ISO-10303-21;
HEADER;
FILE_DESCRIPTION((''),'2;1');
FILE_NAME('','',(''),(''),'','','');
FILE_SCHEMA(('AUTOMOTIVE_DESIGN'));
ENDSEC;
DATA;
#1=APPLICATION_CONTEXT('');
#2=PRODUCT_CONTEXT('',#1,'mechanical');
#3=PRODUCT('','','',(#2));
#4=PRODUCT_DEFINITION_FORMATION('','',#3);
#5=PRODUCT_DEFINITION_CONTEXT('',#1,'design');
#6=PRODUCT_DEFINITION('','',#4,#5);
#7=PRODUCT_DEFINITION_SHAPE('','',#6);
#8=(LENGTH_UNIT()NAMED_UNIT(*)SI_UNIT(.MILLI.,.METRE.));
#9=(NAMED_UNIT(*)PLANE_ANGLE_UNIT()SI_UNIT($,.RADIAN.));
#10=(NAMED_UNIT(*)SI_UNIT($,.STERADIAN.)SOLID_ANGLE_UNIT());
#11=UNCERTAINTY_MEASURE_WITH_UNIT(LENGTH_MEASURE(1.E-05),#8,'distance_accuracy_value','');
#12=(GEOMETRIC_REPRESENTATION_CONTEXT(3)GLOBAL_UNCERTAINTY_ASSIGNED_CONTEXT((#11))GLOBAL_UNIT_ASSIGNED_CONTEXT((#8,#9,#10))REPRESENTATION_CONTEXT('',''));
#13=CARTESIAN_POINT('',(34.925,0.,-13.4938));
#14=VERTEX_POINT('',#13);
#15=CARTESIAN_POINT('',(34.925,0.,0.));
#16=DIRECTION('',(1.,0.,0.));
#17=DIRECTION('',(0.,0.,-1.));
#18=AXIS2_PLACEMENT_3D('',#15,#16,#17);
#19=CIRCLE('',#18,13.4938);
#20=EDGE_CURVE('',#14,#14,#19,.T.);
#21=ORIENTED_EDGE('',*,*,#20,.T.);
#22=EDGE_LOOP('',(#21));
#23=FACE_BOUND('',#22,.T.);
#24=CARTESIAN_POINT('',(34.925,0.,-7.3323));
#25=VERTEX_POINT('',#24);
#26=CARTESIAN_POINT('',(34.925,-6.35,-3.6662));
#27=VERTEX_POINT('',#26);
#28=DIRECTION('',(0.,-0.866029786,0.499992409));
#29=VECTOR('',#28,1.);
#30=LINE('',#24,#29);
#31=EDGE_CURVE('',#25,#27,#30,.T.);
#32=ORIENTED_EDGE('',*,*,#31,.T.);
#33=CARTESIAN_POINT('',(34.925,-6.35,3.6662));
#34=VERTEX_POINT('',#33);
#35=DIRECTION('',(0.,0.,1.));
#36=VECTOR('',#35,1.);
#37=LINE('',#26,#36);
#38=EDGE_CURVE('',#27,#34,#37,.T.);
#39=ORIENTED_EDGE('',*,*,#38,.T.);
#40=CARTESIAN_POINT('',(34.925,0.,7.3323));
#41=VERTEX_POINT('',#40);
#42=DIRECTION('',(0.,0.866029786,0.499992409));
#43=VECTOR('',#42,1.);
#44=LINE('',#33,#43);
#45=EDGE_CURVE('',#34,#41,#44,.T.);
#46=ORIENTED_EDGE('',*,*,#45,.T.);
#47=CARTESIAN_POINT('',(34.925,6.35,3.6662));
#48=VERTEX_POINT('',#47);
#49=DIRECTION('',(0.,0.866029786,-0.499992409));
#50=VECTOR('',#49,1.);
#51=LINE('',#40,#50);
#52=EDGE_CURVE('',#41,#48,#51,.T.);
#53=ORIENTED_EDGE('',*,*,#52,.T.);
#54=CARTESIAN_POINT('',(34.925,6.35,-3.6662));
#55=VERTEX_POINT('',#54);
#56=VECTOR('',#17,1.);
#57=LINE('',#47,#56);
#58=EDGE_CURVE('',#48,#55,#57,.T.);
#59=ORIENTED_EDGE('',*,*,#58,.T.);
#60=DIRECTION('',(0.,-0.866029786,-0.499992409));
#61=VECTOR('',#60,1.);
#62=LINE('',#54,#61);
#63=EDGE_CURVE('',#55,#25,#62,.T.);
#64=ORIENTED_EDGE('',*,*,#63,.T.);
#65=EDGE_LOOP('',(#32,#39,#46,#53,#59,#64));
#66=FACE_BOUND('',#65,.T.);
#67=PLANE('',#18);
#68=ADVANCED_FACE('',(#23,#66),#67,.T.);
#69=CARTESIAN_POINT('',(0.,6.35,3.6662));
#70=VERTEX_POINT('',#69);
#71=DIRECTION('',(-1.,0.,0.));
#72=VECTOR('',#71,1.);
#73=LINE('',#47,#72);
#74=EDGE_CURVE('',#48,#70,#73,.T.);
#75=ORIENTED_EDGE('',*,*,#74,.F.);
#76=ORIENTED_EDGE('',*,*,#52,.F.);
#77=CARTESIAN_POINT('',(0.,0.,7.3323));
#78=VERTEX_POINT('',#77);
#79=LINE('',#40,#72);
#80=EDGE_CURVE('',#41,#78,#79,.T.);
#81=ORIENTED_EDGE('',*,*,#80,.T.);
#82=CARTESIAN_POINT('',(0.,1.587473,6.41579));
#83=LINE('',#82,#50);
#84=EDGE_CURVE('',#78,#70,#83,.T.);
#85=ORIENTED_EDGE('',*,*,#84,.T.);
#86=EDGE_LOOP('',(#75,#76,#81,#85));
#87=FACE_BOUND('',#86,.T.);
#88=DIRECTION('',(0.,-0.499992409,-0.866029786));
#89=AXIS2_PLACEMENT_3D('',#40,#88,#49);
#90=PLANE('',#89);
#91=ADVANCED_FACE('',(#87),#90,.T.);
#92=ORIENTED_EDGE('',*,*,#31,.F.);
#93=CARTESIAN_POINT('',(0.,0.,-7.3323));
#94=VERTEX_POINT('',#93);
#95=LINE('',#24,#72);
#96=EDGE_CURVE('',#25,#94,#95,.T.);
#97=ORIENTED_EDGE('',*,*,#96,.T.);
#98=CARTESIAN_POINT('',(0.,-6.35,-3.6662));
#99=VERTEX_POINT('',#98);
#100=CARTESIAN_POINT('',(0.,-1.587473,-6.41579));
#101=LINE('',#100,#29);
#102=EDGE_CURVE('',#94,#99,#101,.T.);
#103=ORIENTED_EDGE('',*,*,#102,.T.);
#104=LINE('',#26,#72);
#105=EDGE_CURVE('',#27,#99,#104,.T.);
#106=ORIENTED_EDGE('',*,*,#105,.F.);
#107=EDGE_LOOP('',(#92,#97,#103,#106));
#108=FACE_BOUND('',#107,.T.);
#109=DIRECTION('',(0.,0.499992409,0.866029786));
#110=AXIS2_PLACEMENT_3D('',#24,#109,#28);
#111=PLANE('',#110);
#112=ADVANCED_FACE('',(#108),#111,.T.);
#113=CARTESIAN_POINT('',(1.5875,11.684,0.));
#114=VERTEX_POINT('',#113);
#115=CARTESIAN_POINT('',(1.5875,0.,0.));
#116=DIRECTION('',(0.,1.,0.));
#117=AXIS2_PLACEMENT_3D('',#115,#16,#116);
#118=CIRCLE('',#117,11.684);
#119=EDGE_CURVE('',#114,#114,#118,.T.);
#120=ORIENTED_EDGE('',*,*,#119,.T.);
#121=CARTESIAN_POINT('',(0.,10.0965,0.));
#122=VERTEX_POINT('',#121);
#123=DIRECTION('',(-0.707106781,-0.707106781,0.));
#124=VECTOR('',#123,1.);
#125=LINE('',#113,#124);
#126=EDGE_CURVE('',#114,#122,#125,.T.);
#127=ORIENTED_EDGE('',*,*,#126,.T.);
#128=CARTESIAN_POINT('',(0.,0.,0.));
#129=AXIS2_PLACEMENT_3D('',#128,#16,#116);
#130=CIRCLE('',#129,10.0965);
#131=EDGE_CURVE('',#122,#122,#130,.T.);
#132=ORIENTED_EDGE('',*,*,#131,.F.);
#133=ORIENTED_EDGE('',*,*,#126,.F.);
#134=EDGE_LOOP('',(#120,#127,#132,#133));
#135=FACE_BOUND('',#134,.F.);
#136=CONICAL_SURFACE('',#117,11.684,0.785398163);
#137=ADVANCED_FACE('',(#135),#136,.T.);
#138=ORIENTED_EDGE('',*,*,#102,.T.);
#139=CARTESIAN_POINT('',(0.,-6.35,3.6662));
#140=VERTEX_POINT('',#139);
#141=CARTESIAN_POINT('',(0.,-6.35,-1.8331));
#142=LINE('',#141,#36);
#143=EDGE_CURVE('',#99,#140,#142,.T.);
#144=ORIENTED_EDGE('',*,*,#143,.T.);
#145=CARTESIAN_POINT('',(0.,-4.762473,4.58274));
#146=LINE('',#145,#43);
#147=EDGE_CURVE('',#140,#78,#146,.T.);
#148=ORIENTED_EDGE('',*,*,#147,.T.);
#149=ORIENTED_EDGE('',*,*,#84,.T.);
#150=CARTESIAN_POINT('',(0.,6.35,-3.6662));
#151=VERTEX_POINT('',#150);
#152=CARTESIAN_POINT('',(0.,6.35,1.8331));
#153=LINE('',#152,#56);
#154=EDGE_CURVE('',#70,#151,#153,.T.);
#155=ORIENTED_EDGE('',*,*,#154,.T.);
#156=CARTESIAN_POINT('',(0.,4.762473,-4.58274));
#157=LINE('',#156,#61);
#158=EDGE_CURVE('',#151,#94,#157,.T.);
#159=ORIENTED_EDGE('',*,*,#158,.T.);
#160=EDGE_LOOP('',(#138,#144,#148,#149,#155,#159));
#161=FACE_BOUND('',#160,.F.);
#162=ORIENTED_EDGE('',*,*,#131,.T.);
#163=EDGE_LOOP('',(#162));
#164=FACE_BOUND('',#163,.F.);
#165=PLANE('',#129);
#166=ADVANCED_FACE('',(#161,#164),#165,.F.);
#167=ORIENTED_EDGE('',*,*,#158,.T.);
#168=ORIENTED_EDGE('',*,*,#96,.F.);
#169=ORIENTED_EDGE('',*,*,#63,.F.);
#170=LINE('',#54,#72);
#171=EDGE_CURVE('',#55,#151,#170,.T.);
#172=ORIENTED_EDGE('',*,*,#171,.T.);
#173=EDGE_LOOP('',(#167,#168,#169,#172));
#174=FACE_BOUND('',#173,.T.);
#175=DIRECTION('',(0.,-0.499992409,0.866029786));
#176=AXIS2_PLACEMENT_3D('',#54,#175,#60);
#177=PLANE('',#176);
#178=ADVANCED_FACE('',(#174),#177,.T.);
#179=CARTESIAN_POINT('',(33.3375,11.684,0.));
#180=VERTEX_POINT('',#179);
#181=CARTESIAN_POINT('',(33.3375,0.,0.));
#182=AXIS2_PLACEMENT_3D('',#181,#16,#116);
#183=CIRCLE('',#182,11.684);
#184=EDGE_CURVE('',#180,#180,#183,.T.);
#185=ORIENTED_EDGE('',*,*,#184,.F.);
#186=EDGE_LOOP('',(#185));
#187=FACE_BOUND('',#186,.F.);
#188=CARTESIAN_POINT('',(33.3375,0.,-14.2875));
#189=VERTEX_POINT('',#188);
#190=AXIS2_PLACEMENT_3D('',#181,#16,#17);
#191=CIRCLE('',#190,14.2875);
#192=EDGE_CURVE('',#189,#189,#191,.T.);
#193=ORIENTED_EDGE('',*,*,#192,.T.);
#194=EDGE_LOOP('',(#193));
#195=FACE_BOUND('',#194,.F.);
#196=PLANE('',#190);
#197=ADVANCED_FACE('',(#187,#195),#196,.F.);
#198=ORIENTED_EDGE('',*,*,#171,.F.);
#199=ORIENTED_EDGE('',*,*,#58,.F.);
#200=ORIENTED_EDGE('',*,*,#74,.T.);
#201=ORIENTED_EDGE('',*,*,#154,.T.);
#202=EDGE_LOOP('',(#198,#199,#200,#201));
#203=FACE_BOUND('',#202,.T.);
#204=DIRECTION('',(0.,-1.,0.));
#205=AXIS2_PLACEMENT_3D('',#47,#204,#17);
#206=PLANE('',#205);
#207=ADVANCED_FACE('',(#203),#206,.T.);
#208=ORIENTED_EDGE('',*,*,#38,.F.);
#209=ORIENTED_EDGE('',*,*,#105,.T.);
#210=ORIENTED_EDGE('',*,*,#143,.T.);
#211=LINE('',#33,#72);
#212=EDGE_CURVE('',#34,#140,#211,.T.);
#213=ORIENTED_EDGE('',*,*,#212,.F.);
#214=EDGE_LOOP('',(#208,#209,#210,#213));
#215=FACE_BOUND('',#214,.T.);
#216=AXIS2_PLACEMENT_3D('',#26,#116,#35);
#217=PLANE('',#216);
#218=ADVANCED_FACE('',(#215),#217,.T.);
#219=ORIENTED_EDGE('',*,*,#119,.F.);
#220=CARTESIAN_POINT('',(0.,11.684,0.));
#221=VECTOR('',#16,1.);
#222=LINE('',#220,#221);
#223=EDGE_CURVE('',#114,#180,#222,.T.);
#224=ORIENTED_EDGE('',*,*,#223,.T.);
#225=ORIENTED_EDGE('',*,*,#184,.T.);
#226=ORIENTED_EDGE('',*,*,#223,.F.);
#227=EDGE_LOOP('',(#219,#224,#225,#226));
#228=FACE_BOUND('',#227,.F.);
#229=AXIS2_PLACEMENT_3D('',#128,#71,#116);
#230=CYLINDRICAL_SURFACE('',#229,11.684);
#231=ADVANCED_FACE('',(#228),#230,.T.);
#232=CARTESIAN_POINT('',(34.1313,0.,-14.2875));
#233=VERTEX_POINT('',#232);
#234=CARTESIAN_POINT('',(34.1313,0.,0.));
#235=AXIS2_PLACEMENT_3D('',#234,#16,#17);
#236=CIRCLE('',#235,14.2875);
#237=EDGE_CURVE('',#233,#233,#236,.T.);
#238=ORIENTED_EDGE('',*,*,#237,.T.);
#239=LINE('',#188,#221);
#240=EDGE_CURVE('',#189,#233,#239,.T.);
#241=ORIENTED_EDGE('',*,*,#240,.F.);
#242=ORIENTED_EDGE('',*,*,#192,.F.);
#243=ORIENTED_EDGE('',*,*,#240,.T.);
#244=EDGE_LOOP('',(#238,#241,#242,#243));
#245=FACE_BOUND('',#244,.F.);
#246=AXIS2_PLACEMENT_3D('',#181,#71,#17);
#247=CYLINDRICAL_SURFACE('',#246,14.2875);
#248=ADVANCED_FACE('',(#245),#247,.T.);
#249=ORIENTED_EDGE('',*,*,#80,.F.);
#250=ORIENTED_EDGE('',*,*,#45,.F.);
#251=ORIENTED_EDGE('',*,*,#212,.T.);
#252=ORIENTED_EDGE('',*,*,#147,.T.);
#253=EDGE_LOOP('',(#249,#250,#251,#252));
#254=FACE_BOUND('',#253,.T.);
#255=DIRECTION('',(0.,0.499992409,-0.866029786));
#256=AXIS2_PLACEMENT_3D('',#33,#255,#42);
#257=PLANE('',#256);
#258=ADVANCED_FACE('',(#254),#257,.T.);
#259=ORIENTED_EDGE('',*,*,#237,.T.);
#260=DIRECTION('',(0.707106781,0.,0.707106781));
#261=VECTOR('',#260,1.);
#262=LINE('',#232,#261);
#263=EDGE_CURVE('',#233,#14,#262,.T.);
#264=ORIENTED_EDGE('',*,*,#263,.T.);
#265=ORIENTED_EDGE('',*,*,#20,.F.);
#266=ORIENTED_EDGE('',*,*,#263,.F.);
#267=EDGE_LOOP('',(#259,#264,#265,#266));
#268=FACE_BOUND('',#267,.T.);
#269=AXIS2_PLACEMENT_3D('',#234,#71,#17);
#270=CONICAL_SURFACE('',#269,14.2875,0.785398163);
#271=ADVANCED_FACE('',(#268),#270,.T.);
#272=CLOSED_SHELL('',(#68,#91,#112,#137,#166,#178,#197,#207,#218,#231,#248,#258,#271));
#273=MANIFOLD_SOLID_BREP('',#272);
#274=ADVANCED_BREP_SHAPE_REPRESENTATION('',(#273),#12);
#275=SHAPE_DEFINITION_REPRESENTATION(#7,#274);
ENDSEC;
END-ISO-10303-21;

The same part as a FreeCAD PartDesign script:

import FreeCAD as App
import Part
import Sketcher

V = App.Vector
Q = App.Units.Quantity


def edges_at(feature, points):
    """Names of the edges that pass closest to the given points."""
    edges = feature.Shape.Edges
    near = lambda p: min(range(len(edges)), key=lambda i: edges[i].distToShape(Part.Vertex(*p))[0])
    return sorted({f"Edge{near(p) + 1}" for p in points})


def add_polygon(sketch, points):
    """Adds a closed chain of lines whose ends are joined by coincident constraints."""
    first, n = sketch.GeometryCount, len(points)
    for a, b in zip(points, points[1:] + points[:1]):
        sketch.addGeometry(Part.LineSegment(App.Vector(*a, 0), App.Vector(*b, 0)), False)
    for i in range(n):
        sketch.addConstraint(Sketcher.Constraint("Coincident", first + i, 2, first + (i + 1) % n, 1))

doc = App.newDocument("Part")
body = doc.addObject("PartDesign::Body", "Body")

sketch1 = body.newObject("Sketcher::SketchObject", "Sketch")
sketch1.AttachmentSupport = (doc.getObject("YZ_Plane"), [""])
sketch1.MapMode = "FlatFace"
sketch1.addGeometry(Part.Circle(V(0, 0, 0), V(0, 0, 1), 11.684), False)
sketch1.addConstraint([
    Sketcher.Constraint("Coincident", 0, 3, -1, 1),
    Sketcher.Constraint("Diameter", 0, Q("0.92 in")),
])
pad1 = body.newObject("PartDesign::Pad", "Pad")
pad1.Profile = sketch1
pad1.Length = Q("1.3125 in")

sketch2 = body.newObject("Sketcher::SketchObject", "Sketch001")
sketch2.AttachmentSupport = (doc.getObject("YZ_Plane"), [""])
sketch2.MapMode = "FlatFace"
sketch2.AttachmentOffset = App.Placement(V(0, 0, 1.3125 * 25.4), App.Rotation())
sketch2.addGeometry(Part.Circle(V(0, 0, 0), V(0, 0, 1), 14.2875), False)
sketch2.addConstraint([
    Sketcher.Constraint("Coincident", 0, 3, -1, 1),
    Sketcher.Constraint("Diameter", 0, Q("1.125 in")),
])
pad2 = body.newObject("PartDesign::Pad", "Pad001")
pad2.Profile = sketch2
pad2.Length = Q("0.0625 in")

sketch3 = body.newObject("Sketcher::SketchObject", "Sketch002")
sketch3.AttachmentSupport = (doc.getObject("YZ_Plane"), [""])
sketch3.MapMode = "FlatFace"
sketch3.AttachmentOffset = App.Placement(V(0, 0, 1.375 * 25.4), App.Rotation())
add_polygon(sketch3, [(0, -7.3323), (6.35, -3.6662), (6.35, 3.6662), (0, 7.3323), (-6.35, 3.6662), (-6.35, -3.6662)])
sketch3.addConstraint([
    Sketcher.Constraint("Vertical", 1),
    Sketcher.Constraint("Vertical", 4),
    Sketcher.Constraint("Symmetric", 0, 2, 3, 2, -1, 1),
    Sketcher.Constraint("Symmetric", 2, 2, 5, 2, -1, 1),
    Sketcher.Constraint("PointOnObject", 2, 2, -2),
    Sketcher.Constraint("Parallel", 2, 5),
    Sketcher.Constraint("Horizontal", 1, 2, 3, 2),
    Sketcher.Constraint("DistanceX", 3, 2, 1, 2, Q("0.5 in")),
    Sketcher.Constraint("Angle", 0, Q("29.9995 deg")),
    Sketcher.Constraint("DistanceY", 0, 2, 2, 2, Q("0.433 in")),
])
pocket1 = body.newObject("PartDesign::Pocket", "Pocket")
pocket1.Profile = sketch3
pocket1.Length = Q("2 in")
doc.recompute()

chamfer = body.newObject("PartDesign::Chamfer", "Chamfer")
chamfer.Base = (pocket1, edges_at(pocket1, [(34.925, 0, 14.287)]))
chamfer.Size = Q("0.031248 in")
doc.recompute()

chamfer2 = body.newObject("PartDesign::Chamfer", "Chamfer001")
chamfer2.Base = (chamfer, edges_at(chamfer, [(0, -11.684, 0)]))
chamfer2.Size = Q("0.0625 in")

doc.recompute()
